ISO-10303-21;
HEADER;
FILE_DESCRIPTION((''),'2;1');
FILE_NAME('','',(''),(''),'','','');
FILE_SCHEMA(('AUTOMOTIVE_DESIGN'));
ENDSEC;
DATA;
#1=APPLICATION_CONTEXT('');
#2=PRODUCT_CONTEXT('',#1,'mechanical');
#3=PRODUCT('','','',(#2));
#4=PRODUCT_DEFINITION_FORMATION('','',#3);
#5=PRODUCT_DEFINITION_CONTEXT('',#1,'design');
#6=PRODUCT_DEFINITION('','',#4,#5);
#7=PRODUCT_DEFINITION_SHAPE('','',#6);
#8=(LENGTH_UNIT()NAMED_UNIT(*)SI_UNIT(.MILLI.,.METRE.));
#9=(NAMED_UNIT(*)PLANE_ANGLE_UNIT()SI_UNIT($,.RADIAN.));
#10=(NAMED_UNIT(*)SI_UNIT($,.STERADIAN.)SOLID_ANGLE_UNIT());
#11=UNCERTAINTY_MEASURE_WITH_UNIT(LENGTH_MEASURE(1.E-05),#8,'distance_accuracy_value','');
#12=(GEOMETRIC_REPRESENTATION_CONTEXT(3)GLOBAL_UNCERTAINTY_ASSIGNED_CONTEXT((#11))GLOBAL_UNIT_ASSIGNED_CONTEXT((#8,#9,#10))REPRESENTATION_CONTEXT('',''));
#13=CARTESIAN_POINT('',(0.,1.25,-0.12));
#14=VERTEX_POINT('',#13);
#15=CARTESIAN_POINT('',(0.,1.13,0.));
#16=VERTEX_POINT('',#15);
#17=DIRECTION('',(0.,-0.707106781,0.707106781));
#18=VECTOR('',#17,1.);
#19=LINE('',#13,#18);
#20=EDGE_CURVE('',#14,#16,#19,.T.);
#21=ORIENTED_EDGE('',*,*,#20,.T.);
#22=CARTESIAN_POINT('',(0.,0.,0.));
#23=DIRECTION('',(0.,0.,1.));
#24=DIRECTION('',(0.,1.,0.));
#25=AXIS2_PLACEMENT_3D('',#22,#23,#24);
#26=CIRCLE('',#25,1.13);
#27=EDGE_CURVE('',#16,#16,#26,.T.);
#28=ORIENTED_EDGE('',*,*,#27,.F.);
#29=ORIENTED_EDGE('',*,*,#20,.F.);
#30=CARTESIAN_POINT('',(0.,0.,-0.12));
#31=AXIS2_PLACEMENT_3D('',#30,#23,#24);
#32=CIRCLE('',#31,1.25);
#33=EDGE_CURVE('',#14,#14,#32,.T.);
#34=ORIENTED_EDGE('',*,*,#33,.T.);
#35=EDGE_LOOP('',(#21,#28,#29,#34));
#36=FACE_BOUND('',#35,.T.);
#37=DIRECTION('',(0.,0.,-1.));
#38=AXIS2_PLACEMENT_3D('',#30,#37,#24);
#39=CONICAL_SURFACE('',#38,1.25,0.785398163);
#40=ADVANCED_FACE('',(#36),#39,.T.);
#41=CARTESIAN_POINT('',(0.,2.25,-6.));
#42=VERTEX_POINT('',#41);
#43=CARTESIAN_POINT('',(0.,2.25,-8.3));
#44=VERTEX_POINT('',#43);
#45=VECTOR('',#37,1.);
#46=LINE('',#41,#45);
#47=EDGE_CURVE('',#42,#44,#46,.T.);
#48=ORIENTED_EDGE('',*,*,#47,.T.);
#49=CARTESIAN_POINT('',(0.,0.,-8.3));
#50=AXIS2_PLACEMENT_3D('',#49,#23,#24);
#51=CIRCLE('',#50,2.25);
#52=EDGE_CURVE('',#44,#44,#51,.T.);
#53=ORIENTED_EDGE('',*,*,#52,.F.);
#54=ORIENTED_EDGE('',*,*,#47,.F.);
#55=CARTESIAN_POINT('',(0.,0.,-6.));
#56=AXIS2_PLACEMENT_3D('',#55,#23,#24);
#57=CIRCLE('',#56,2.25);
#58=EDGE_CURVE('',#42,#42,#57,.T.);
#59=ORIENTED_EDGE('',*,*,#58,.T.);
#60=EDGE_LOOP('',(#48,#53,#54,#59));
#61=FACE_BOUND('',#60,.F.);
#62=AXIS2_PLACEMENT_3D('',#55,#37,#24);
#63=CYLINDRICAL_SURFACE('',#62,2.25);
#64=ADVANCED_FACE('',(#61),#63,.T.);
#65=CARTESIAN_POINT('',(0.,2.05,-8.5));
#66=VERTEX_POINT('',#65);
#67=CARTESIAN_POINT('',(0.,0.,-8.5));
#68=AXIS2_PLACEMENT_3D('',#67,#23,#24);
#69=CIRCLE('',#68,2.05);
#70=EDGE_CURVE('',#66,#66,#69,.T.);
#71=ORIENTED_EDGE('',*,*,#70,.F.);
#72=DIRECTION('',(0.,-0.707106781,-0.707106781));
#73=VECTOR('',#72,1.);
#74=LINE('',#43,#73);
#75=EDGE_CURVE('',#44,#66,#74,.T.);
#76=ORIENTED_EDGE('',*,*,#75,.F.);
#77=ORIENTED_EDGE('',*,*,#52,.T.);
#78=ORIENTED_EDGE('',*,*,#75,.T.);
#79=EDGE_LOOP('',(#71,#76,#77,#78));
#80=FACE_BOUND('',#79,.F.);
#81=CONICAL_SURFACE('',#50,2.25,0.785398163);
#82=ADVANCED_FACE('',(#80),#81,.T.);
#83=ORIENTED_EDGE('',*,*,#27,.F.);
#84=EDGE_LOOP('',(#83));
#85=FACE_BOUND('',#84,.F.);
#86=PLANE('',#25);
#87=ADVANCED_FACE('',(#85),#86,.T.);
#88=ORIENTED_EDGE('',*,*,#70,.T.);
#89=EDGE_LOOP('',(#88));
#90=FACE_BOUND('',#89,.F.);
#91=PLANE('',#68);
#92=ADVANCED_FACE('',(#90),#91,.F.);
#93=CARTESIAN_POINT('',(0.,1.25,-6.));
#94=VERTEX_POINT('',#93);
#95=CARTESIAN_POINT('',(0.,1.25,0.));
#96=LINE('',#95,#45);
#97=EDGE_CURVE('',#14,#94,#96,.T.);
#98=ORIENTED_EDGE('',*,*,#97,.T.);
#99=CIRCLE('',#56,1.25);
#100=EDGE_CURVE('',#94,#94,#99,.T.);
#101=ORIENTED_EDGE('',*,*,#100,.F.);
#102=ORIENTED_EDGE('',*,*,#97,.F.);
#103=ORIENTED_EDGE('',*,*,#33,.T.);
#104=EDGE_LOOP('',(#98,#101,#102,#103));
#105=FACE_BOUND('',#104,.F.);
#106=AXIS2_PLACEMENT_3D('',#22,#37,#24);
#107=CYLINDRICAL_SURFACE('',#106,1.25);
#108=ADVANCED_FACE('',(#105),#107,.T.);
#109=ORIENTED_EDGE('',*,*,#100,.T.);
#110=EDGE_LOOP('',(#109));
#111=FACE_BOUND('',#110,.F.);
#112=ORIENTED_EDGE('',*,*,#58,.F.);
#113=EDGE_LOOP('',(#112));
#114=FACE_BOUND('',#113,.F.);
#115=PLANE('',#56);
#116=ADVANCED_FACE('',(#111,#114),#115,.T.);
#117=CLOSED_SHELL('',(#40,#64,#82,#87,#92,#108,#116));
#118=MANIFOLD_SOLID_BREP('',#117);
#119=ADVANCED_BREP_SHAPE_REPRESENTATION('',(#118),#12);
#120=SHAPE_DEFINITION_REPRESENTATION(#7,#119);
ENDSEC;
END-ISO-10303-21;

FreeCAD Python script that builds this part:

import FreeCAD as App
import Part
import Sketcher

V = App.Vector
Q = App.Units.Quantity

doc = App.newDocument("Part")
body = doc.addObject("PartDesign::Body", "Body")

# Sketch on YZ plane
sketch1 = doc.addObject("Sketcher::SketchObject", "Sketch")
body.addObject(sketch1)
sketch1.AttachmentSupport = (doc.YZ_Plane, [""])
sketch1.MapMode = "FlatFace"
sketch1.addGeometry([
    Part.LineSegment(V(1.13, 0, 0), V(0, 0, 0)),  # 0
    Part.LineSegment(V(0, 0, 0), V(0, -8.5, 0)),  # 1
    Part.LineSegment(V(0, -8.5, 0), V(2.05, -8.5, 0)),  # 2
    Part.LineSegment(V(2.05, -8.5, 0), V(2.25, -8.3, 0)),  # 3
    Part.LineSegment(V(2.25, -8.3, 0), V(2.25, -6, 0)),  # 4
    Part.LineSegment(V(2.25, -6, 0), V(1.25, -6, 0)),  # 5
    Part.LineSegment(V(1.25, -6, 0), V(1.25, -0.12, 0)),  # 6
    Part.LineSegment(V(1.25, -0.12, 0), V(1.13, 0, 0)),  # 7
], False)
sketch1.addConstraint([
    Sketcher.Constraint("Coincident", 0, 2, 1, 1),
    Sketcher.Constraint("Coincident", 1, 2, 2, 1),
    Sketcher.Constraint("Coincident", 2, 2, 3, 1),
    Sketcher.Constraint("Coincident", 3, 2, 4, 1),
    Sketcher.Constraint("Coincident", 4, 2, 5, 1),
    Sketcher.Constraint("Coincident", 5, 2, 6, 1),
    Sketcher.Constraint("Coincident", 6, 2, 7, 1),
    Sketcher.Constraint("Coincident", 7, 2, 0, 1),
    Sketcher.Constraint("Horizontal", 0),
    Sketcher.Constraint("Vertical", 1),
    Sketcher.Constraint("Horizontal", 2),
    Sketcher.Constraint("Vertical", 4),
    Sketcher.Constraint("Horizontal", 5),
    Sketcher.Constraint("Vertical", 6),
    Sketcher.Constraint("Coincident", 0, 2, -1, 1),
    Sketcher.Constraint("Perpendicular", 3, 7),
    Sketcher.Constraint("Angle", 3, Q("45 deg")),
    Sketcher.Constraint("DistanceY", 4, 2, -1, 1, 6.0),
    Sketcher.Constraint("DistanceX", 2, 2, 3, 2, 0.2),
    Sketcher.Constraint("DistanceY", 2, 2, 4, 2, 2.5),
    Sketcher.Constraint("DistanceX", 5, 2, 5, 1, 1.0),
    Sketcher.Constraint("DistanceX", -1, 1, 3, 2, 2.25),
    Sketcher.Constraint("DistanceY", 6, 2, -1, 1, 0.12),
])
revolution = doc.addObject("PartDesign::Revolution", "Revolution")
body.addObject(revolution)
revolution.Profile = sketch1
revolution.ReferenceAxis = (sketch1, ["V_Axis"])
revolution.Angle = 360

doc.recompute()
